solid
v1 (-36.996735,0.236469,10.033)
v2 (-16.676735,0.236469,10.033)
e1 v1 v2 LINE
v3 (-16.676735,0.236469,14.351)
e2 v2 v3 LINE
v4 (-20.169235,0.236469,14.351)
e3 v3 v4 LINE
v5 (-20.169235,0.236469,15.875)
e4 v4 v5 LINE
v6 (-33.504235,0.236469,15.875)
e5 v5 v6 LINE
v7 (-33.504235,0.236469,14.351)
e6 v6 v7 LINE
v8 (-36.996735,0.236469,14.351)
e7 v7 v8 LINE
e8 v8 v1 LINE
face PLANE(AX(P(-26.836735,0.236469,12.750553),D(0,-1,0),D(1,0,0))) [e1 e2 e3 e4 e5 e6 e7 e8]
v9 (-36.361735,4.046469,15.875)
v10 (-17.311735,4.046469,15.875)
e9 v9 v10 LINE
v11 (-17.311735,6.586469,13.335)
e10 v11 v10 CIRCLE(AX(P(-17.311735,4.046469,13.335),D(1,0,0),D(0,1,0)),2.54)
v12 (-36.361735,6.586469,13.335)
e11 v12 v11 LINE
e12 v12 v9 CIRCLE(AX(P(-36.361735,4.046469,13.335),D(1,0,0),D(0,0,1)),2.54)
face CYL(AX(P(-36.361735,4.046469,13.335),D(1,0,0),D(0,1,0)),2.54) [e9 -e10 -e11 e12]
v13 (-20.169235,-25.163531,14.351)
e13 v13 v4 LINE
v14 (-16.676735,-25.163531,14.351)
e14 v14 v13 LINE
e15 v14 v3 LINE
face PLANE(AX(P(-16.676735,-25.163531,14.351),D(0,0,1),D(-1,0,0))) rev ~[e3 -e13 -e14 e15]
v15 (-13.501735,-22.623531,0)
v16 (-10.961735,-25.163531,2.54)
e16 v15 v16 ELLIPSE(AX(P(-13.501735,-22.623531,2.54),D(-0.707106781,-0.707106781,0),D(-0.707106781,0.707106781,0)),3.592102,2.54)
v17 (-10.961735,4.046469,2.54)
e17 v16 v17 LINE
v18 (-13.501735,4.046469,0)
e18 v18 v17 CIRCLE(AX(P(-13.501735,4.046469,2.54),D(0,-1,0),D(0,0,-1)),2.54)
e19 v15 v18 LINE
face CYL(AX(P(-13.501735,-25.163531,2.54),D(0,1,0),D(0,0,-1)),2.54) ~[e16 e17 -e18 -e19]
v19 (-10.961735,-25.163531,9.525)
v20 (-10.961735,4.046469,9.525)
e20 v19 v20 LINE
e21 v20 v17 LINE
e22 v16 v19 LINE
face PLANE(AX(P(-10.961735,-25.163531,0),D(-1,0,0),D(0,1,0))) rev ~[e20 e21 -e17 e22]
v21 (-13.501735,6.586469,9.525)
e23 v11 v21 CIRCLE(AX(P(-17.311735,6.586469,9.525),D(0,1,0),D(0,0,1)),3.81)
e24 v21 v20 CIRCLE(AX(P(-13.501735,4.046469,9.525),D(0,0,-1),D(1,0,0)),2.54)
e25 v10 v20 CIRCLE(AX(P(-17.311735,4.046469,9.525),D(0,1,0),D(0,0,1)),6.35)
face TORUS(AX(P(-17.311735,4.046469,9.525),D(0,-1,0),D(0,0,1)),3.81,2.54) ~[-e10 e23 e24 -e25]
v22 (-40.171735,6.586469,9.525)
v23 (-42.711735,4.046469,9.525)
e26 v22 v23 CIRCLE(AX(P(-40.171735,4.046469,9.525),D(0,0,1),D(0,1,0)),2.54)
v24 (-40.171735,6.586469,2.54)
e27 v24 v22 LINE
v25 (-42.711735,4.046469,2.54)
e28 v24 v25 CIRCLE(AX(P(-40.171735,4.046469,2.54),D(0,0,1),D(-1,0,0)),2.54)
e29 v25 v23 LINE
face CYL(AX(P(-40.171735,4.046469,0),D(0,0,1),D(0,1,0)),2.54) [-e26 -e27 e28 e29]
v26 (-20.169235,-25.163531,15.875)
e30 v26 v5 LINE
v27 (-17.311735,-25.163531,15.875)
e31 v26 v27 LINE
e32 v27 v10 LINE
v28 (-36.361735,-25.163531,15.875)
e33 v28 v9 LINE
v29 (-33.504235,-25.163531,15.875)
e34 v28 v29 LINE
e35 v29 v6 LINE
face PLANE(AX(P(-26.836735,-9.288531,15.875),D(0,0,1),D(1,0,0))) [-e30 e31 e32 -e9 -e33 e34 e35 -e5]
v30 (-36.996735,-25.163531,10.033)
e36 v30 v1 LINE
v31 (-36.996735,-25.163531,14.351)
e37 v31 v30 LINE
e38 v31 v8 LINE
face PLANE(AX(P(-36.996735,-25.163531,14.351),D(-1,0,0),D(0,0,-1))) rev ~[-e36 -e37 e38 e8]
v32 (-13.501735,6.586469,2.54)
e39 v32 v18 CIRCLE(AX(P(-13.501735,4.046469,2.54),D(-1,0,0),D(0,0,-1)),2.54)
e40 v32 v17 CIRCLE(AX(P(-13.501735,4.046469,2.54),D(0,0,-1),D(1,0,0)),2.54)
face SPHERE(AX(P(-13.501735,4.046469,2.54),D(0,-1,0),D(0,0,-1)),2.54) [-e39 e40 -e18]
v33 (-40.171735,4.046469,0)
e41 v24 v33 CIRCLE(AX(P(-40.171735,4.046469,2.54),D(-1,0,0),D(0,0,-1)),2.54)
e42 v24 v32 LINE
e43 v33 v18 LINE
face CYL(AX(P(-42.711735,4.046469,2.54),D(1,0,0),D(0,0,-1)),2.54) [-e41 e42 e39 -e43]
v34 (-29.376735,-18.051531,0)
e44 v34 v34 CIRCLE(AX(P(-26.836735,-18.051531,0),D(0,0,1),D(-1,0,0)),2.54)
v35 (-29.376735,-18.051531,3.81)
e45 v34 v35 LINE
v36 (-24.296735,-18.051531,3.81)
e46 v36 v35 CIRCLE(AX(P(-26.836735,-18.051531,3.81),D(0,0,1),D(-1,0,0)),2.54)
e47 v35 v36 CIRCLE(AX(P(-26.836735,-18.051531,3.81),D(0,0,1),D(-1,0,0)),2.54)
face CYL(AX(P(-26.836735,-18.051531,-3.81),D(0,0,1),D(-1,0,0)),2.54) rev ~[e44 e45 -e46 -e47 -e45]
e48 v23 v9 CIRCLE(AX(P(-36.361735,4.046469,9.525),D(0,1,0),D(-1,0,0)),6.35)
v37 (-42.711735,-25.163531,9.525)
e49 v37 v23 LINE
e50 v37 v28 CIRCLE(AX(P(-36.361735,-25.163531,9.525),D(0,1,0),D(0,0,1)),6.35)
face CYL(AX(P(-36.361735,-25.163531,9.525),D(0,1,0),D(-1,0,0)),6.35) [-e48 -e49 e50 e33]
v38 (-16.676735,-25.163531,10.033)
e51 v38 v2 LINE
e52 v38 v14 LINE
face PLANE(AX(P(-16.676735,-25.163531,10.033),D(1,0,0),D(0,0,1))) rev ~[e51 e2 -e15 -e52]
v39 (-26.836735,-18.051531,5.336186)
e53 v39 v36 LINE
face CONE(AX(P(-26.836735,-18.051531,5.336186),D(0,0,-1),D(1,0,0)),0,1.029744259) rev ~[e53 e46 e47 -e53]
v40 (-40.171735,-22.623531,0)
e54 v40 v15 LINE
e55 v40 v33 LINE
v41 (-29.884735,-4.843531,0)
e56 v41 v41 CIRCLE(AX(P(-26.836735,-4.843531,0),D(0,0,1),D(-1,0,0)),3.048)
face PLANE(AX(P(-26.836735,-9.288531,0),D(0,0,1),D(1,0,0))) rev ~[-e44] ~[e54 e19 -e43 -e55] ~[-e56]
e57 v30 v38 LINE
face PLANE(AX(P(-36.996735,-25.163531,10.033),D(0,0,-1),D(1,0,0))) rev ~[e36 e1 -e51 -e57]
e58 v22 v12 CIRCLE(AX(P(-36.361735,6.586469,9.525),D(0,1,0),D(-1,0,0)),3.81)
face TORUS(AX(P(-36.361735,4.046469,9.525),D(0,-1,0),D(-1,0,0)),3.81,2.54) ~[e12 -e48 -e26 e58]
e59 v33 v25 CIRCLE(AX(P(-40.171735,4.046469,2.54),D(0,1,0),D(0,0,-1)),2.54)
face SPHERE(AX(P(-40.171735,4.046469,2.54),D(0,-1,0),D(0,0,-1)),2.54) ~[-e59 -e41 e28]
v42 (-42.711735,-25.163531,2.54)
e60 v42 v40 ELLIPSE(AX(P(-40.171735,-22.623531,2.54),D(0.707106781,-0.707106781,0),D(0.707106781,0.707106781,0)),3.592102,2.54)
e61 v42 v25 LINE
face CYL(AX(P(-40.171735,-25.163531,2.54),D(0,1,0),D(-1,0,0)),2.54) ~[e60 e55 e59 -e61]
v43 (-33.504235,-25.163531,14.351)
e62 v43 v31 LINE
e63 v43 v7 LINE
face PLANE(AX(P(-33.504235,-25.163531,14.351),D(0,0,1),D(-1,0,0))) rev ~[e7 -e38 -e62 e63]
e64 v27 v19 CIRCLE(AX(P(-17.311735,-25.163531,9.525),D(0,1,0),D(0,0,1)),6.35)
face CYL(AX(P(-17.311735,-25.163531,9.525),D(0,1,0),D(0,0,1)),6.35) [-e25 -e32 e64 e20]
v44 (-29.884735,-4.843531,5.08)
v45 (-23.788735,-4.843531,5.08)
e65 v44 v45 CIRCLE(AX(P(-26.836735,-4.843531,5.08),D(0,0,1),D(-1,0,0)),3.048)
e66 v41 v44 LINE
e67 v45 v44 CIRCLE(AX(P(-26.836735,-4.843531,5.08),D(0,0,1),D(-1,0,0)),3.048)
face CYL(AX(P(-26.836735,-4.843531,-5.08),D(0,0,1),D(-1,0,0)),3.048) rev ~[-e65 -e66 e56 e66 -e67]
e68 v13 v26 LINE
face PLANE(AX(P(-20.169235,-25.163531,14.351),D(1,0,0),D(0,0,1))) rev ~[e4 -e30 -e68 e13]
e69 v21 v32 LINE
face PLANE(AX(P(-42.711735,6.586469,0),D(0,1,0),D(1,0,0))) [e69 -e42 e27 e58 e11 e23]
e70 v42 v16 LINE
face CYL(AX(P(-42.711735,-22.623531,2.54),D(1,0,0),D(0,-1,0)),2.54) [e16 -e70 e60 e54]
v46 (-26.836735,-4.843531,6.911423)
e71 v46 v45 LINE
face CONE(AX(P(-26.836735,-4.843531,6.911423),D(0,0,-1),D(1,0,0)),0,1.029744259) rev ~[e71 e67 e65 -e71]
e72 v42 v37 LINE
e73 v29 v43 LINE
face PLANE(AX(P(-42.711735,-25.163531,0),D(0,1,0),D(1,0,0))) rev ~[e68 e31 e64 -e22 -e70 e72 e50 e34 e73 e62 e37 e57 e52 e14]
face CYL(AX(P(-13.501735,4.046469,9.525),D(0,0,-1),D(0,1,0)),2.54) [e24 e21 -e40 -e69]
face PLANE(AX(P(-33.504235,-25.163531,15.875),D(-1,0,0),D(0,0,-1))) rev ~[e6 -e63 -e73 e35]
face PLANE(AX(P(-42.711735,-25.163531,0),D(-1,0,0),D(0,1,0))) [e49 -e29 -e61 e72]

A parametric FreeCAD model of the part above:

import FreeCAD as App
import Part
import Sketcher
from FreeCAD import Vector
Q = App.Units.Quantity


def edges_at(feature, points):
    """Names of the edges that pass closest to the given points."""
    edges = feature.Shape.Edges
    near = lambda p: min(range(len(edges)), key=lambda i: edges[i].distToShape(Part.Vertex(*p))[0])
    return sorted({f"Edge{near(p) + 1}" for p in points})


def add_polygon(sketch, points):
    """Adds a closed chain of lines whose ends are joined by coincident constraints."""
    first, n = sketch.GeometryCount, len(points)
    for a, b in zip(points, points[1:] + points[:1]):
        sketch.addGeometry(Part.LineSegment(App.Vector(*a, 0), App.Vector(*b, 0)), False)
    for i in range(n):
        sketch.addConstraint(Sketcher.Constraint("Coincident", first + i, 2, first + (i + 1) % n, 1))

doc = App.newDocument("Part")
body = doc.addObject("PartDesign::Body", "Body")

# Sketch on XY plane
sketch1 = body.newObject("Sketcher::SketchObject", "Sketch")
sketch1.AttachmentSupport = (doc.getObject("XY_Plane"), [""])
sketch1.MapMode = "FlatFace"
add_polygon(sketch1, [(-42.711735, 6.586469), (-42.711735, -25.163531), (-10.961735, -25.163531), (-10.961735, 6.586469)])  # lines 0-3
sketch1.addConstraint([
    Sketcher.Constraint("Vertical", 0),
    Sketcher.Constraint("Horizontal", 1),
    Sketcher.Constraint("Vertical", 2),
    Sketcher.Constraint("Horizontal", 3),
    Sketcher.Constraint("Equal", 3, 0),
    Sketcher.Constraint("DistanceX", 1, 1, 1, 2, Q("1.25 in")),
    Sketcher.Constraint("DistanceY", 0, 2, -1, 1, 25.163531),
    Sketcher.Constraint("DistanceX", 0, 2, -1, 1, 42.711735),
])
pad1 = body.newObject("PartDesign::Pad", "Pad")
pad1.Profile = sketch1
pad1.Length = Q("0.625 in")

# Sketch on XZ plane
sketch2 = body.newObject("Sketcher::SketchObject", "Sketch001")
sketch2.AttachmentSupport = (doc.getObject("XZ_Plane"), [""])
sketch2.MapMode = "FlatFace"
sketch2.AttachmentOffset = App.Placement(Vector(0, 0, 25.163531), App.Rotation())
add_polygon(sketch2, [(-20.169235, 15.875), (-33.504235, 15.875), (-33.504235, 14.351), (-36.996735, 14.351), (-36.996735, 10.033), (-16.676735, 10.033), (-16.676735, 14.351), (-20.169235, 14.351)])  # lines 0-7
sketch2.addConstraint([
    Sketcher.Constraint("Horizontal", 0),
    Sketcher.Constraint("Vertical", 1),
    Sketcher.Constraint("Horizontal", 2),
    Sketcher.Constraint("Vertical", 3),
    Sketcher.Constraint("Horizontal", 4),
    Sketcher.Constraint("Vertical", 5),
    Sketcher.Constraint("Horizontal", 6),
    Sketcher.Constraint("Vertical", 7),
    Sketcher.Constraint("Horizontal", 2, 2, 5, 2),
    Sketcher.Constraint("Equal", 2, 6),
    Sketcher.Constraint("DistanceX", 4, 1, 4, 2, Q("0.8 in")),
    Sketcher.Constraint("DistanceY", 1, 2, 1, 1, Q("0.06 in")),
    Sketcher.Constraint("DistanceY", 3, 2, 3, 1, Q("0.17 in")),
    Sketcher.Constraint("DistanceX", 0, 2, 0, 1, Q("0.525 in")),
    Sketcher.Constraint("DistanceY", -1, 1, 0, 2, Q("0.625 in")),
    Sketcher.Constraint("DistanceX", 0, 2, -1, 1, 33.504235),
])
pocket1 = body.newObject("PartDesign::Pocket", "Pocket")
pocket1.Profile = sketch2
pocket1.Length = Q("1 in")

# Sketch on XY plane
sketch3 = body.newObject("Sketcher::SketchObject", "Sketch002")
sketch3.AttachmentSupport = (doc.getObject("XY_Plane"), [""])
sketch3.MapMode = "FlatFace"
sketch3.addGeometry(Part.Circle(Vector(-26.836735, -18.051531, 0), Vector(0, 0, 1), 2.54), False)
sketch3.addConstraint([
    Sketcher.Constraint("Diameter", 0, Q("0.2 in")),
    Sketcher.Constraint("DistanceY", 0, 3, -1, 1, 18.051531),
    Sketcher.Constraint("DistanceX", 0, 3, -1, 1, 26.836735),
])
doc.recompute()
hole = body.newObject("PartDesign::Hole", "Hole")
hole.Profile = sketch3
hole.ThreadType = "None"
hole.Diameter = Q("0.2 in")
hole.DepthType = "Dimension"
hole.Depth = Q("0.15 in")
hole.DrillPoint = "Angled"
hole.DrillPointAngle = 118
hole.Reversed = True

# Sketch on XY plane
sketch4 = body.newObject("Sketcher::SketchObject", "Sketch003")
sketch4.AttachmentSupport = (doc.getObject("XY_Plane"), [""])
sketch4.MapMode = "FlatFace"
sketch4.addGeometry(Part.Circle(Vector(-26.836735, -4.843531, 0), Vector(0, 0, 1), 3.048), False)
sketch4.addConstraint([
    Sketcher.Constraint("Diameter", 0, Q("0.24 in")),
    Sketcher.Constraint("DistanceY", 0, 3, -1, 1, 4.843531),
    Sketcher.Constraint("DistanceX", 0, 3, -1, 1, 26.836735),
])
doc.recompute()
hole2 = body.newObject("PartDesign::Hole", "Hole001")
hole2.Profile = sketch4
hole2.ThreadType = "None"
hole2.Diameter = Q("0.24 in")
hole2.DepthType = "Dimension"
hole2.Depth = Q("0.2 in")
hole2.DrillPoint = "Angled"
hole2.DrillPointAngle = 118
hole2.Reversed = True
doc.recompute()

fillet = body.newObject("PartDesign::Fillet", "Fillet")
fillet.Base = (hole2, edges_at(hole2, [(-42.712, -9.289, 15.875), (-10.962, -9.289, 15.875)]))
fillet.Radius = Q("0.25 in")
doc.recompute()

fillet2 = body.newObject("PartDesign::Fillet", "Fillet001")
fillet2.Base = (fillet, edges_at(fillet, [
    (-42.712, -9.289, 0),
    (-10.962, -9.289, 0),
    (-26.837, -25.164, 0),
    (-26.837, 6.586, 0),
    (-26.837, 6.586, 15.875),
]))
fillet2.Radius = Q("0.1 in")

doc.recompute()
